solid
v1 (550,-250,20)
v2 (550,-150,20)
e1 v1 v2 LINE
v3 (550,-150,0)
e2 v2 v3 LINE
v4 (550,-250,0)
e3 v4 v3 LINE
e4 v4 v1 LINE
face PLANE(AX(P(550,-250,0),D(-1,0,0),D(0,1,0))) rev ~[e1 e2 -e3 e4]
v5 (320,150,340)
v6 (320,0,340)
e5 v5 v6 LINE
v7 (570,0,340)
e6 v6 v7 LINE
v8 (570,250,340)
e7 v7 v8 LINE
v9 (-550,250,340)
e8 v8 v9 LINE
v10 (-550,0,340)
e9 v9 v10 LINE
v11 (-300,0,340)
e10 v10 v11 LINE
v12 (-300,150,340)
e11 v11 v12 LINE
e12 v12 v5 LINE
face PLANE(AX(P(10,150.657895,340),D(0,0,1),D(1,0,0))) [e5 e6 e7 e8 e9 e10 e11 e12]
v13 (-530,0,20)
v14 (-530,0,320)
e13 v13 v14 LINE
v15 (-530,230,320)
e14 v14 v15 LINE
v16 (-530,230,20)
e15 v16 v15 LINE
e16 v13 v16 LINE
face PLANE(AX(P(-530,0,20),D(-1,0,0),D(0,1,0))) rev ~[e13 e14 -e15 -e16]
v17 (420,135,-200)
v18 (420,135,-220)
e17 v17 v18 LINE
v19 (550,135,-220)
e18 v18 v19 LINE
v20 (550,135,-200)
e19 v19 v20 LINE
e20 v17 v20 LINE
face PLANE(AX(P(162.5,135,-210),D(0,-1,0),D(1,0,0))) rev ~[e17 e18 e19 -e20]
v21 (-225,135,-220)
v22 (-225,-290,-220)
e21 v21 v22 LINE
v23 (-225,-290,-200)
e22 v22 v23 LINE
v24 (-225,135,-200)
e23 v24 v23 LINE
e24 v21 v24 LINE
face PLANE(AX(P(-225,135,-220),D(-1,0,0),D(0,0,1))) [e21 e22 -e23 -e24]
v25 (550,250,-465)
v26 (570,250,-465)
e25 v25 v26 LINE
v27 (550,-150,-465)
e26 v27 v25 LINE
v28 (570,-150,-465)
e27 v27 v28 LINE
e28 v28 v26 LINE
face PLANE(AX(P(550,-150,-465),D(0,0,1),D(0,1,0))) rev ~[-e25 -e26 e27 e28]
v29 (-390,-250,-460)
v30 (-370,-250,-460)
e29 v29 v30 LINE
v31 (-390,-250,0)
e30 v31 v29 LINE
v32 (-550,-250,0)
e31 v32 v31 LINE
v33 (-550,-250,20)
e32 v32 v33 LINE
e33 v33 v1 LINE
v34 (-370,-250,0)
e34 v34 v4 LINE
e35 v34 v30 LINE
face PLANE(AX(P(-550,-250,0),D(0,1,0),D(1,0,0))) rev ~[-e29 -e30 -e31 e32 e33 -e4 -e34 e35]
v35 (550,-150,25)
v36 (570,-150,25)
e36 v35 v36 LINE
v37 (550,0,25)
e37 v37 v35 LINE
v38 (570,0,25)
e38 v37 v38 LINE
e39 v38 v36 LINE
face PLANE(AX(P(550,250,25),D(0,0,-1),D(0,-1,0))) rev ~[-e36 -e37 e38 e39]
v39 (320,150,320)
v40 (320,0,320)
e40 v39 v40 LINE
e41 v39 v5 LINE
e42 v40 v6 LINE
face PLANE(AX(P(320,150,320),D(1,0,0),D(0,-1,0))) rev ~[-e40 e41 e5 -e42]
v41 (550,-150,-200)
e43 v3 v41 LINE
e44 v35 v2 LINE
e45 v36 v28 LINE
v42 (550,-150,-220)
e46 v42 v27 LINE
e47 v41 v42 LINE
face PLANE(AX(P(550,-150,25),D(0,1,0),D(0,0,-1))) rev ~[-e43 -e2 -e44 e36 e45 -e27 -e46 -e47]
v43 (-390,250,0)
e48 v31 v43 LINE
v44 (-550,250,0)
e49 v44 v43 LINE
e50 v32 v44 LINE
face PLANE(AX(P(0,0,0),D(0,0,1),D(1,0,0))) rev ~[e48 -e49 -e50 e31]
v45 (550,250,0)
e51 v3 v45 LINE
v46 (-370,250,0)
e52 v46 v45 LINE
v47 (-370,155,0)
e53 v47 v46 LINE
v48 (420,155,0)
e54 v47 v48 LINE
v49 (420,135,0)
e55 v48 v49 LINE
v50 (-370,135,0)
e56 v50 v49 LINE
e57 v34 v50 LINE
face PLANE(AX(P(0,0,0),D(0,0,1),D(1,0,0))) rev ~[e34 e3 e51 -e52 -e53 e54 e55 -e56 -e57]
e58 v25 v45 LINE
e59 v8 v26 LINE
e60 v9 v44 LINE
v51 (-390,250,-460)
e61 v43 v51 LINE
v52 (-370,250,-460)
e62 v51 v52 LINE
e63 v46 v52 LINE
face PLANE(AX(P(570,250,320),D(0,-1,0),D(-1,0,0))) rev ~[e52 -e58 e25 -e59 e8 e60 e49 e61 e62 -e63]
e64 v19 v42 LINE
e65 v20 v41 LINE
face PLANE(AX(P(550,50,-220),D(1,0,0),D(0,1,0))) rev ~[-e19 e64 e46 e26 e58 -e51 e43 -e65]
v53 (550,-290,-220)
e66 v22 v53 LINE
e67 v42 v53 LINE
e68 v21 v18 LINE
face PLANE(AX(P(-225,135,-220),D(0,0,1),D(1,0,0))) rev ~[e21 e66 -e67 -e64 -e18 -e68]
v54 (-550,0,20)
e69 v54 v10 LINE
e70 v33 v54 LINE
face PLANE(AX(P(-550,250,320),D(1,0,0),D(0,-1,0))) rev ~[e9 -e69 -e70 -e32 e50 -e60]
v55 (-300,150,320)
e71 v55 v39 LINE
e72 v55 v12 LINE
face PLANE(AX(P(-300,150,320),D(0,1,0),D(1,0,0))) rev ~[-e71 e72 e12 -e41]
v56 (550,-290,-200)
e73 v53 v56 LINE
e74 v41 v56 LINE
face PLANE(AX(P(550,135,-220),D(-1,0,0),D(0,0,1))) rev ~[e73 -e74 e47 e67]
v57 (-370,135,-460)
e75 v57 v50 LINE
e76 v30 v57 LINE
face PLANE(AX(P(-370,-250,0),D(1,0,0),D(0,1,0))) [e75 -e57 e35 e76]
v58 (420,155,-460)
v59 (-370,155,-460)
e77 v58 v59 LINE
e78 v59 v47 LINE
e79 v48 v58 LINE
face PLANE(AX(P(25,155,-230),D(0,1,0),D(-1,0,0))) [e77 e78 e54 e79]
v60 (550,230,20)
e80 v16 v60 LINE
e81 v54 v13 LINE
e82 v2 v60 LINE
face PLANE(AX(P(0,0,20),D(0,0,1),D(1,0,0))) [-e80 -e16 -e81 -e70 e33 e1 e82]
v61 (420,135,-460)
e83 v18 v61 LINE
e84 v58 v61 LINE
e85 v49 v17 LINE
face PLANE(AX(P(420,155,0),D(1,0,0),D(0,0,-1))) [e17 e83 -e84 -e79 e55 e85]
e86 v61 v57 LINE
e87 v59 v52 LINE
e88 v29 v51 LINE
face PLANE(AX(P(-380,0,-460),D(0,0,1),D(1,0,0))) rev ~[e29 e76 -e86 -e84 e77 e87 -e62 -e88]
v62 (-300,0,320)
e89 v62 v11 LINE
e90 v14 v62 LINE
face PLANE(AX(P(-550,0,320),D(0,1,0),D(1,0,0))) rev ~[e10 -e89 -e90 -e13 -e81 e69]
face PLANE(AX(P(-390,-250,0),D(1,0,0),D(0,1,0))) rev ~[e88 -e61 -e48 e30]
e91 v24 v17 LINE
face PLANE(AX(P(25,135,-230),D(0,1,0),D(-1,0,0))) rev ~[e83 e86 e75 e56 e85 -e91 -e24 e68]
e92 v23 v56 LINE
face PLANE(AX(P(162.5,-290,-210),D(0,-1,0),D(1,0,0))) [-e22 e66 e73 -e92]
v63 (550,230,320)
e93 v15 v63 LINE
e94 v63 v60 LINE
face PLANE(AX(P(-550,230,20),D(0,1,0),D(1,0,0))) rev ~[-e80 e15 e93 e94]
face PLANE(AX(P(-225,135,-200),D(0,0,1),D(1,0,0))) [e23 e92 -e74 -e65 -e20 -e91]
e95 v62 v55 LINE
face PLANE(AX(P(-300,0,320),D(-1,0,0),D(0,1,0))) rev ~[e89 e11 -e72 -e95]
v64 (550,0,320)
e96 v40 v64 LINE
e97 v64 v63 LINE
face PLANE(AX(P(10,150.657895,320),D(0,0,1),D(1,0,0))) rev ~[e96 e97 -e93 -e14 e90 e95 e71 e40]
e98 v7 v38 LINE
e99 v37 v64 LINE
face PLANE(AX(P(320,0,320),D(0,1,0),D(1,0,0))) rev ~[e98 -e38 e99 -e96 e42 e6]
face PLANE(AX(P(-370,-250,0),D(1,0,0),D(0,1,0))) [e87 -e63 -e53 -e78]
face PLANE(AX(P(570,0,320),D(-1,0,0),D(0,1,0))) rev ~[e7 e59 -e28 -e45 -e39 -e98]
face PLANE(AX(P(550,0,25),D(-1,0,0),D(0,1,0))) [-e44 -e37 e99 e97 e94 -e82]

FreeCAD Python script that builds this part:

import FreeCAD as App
import Part
import Sketcher

V = App.Vector


def add_polygon(sketch, points):
    """Adds a closed chain of lines whose ends are joined by coincident constraints."""
    first, n = sketch.GeometryCount, len(points)
    for a, b in zip(points, points[1:] + points[:1]):
        sketch.addGeometry(Part.LineSegment(App.Vector(*a, 0), App.Vector(*b, 0)), False)
    for i in range(n):
        sketch.addConstraint(Sketcher.Constraint("Coincident", first + i, 2, first + (i + 1) % n, 1))

doc = App.newDocument("Part")
body = doc.addObject("PartDesign::Body", "Body")

sketch1 = body.newObject("Sketcher::SketchObject", "Sketch")
sketch1.AttachmentSupport = (doc.getObject("XY_Plane"), [""])
sketch1.MapMode = "FlatFace"
add_polygon(sketch1, [(-550, 250), (-550, -250), (550, -250), (550, 250)])
sketch1.addConstraint(Sketcher.Constraint("Vertical", 0))
sketch1.addConstraint(Sketcher.Constraint("Horizontal", 1))
sketch1.addConstraint(Sketcher.Constraint("Vertical", 2))
sketch1.addConstraint(Sketcher.Constraint("Horizontal", 3))
sketch1.addConstraint(Sketcher.Constraint("Symmetric", 0, 2, 2, 2, -1, 1))
sketch1.addConstraint(Sketcher.Constraint("DistanceX", 1, 1, 1, 2, 1100.0))
sketch1.addConstraint(Sketcher.Constraint("DistanceY", 0, 2, 0, 1, 500.0))
pad1 = body.newObject("PartDesign::Pad", "Pad")
pad1.Profile = sketch1
pad1.Length = 20

sketch2 = body.newObject("Sketcher::SketchObject", "Sketch001")
sketch2.AttachmentSupport = (doc.getObject("YZ_Plane"), [""])
sketch2.MapMode = "FlatFace"
sketch2.AttachmentOffset = App.Placement(V(0, 0, 550), App.Rotation())
add_polygon(sketch2, [(250, -465), (250, 25), (-150, 25), (-150, -465)])
sketch2.addConstraint(Sketcher.Constraint("Vertical", 0))
sketch2.addConstraint(Sketcher.Constraint("Horizontal", 1))
sketch2.addConstraint(Sketcher.Constraint("Vertical", 2))
sketch2.addConstraint(Sketcher.Constraint("Horizontal", 3))
sketch2.addConstraint(Sketcher.Constraint("DistanceX", 1, 2, 1, 1, 400.0))
sketch2.addConstraint(Sketcher.Constraint("DistanceY", 0, 1, 0, 2, 490.0))
sketch2.addConstraint(Sketcher.Constraint("DistanceX", -1, 1, 0, 2, 250.0))
sketch2.addConstraint(Sketcher.Constraint("DistanceY", -1, 1, 0, 2, 25.0))
pad2 = body.newObject("PartDesign::Pad", "Pad001")
pad2.Profile = sketch2
pad2.Length = 20

sketch3 = body.newObject("Sketcher::SketchObject", "Sketch002")
sketch3.AttachmentSupport = (doc.getObject("XY_Plane"), [""])
sketch3.MapMode = "FlatFace"
add_polygon(sketch3, [(-390, 250), (-390, -250), (-370, -250), (-370, 250)])
sketch3.addConstraint(Sketcher.Constraint("Vertical", 0))
sketch3.addConstraint(Sketcher.Constraint("Horizontal", 1))
sketch3.addConstraint(Sketcher.Constraint("Vertical", 2))
sketch3.addConstraint(Sketcher.Constraint("Horizontal", 3))
sketch3.addConstraint(Sketcher.Constraint("DistanceX", 1, 1, 1, 2, 20.0))
sketch3.addConstraint(Sketcher.Constraint("DistanceY", 0, 2, 0, 1, 500.0))
sketch3.addConstraint(Sketcher.Constraint("DistanceX", 0, 2, -1, 1, 390.0))
sketch3.addConstraint(Sketcher.Constraint("DistanceY", 0, 2, -1, 1, 250.0))
pad3 = body.newObject("PartDesign::Pad", "Pad002")
pad3.Profile = sketch3
pad3.Length = 460
pad3.Reversed = True

sketch4 = body.newObject("Sketcher::SketchObject", "Sketch003")
sketch4.AttachmentSupport = (doc.getObject("XZ_Plane"), [""])
sketch4.MapMode = "FlatFace"
sketch4.AttachmentOffset = App.Placement(V(0, 0, -155), App.Rotation())
add_polygon(sketch4, [(-370, 0), (420, 0), (420, -460), (-370, -460)])
sketch4.addConstraint(Sketcher.Constraint("Horizontal", 0))
sketch4.addConstraint(Sketcher.Constraint("Vertical", 1))
sketch4.addConstraint(Sketcher.Constraint("Horizontal", 2))
sketch4.addConstraint(Sketcher.Constraint("Vertical", 3))
sketch4.addConstraint(Sketcher.Constraint("PointOnObject", 0, 2, -1))
sketch4.addConstraint(Sketcher.Constraint("DistanceX", 0, 1, 0, 2, 790.0))
sketch4.addConstraint(Sketcher.Constraint("DistanceY", 1, 2, 1, 1, 460.0))
sketch4.addConstraint(Sketcher.Constraint("DistanceX", -1, 1, 0, 2, 420.0))
pad4 = body.newObject("PartDesign::Pad", "Pad003")
pad4.Profile = sketch4
pad4.Length = 20

sketch5 = body.newObject("Sketcher::SketchObject", "Sketch004")
sketch5.AttachmentSupport = (doc.getObject("XZ_Plane"), [""])
sketch5.MapMode = "FlatFace"
sketch5.AttachmentOffset = App.Placement(V(0, 0, -135), App.Rotation())
add_polygon(sketch5, [(-225, -200), (-225, -220), (550, -220), (550, -200)])
sketch5.addConstraint(Sketcher.Constraint("Vertical", 0))
sketch5.addConstraint(Sketcher.Constraint("Horizontal", 1))
sketch5.addConstraint(Sketcher.Constraint("Vertical", 2))
sketch5.addConstraint(Sketcher.Constraint("Horizontal", 3))
sketch5.addConstraint(Sketcher.Constraint("DistanceX", 1, 1, 1, 2, 775.0))
sketch5.addConstraint(Sketcher.Constraint("DistanceY", 0, 2, 0, 1, 20.0))
sketch5.addConstraint(Sketcher.Constraint("DistanceX", 0, 2, -1, 1, 225.0))
sketch5.addConstraint(Sketcher.Constraint("DistanceY", 0, 2, -1, 1, 220.0))
pad5 = body.newObject("PartDesign::Pad", "Pad004")
pad5.Profile = sketch5
pad5.Length = 425

sketch6 = body.newObject("Sketcher::SketchObject", "Sketch005")
sketch6.AttachmentSupport = (doc.getObject("XY_Plane"), [""])
sketch6.MapMode = "FlatFace"
sketch6.AttachmentOffset = App.Placement(V(0, 0, 20), App.Rotation())
add_polygon(sketch6, [(-550, 250), (-550, 230), (550, 230), (550, 250)])
sketch6.addConstraint(Sketcher.Constraint("Vertical", 0))
sketch6.addConstraint(Sketcher.Constraint("Horizontal", 1))
sketch6.addConstraint(Sketcher.Constraint("Vertical", 2))
sketch6.addConstraint(Sketcher.Constraint("Horizontal", 3))
sketch6.addConstraint(Sketcher.Constraint("DistanceX", 1, 1, 1, 2, 1100.0))
sketch6.addConstraint(Sketcher.Constraint("DistanceY", 0, 2, 0, 1, 20.0))
sketch6.addConstraint(Sketcher.Constraint("DistanceX", 0, 2, -1, 1, 550.0))
sketch6.addConstraint(Sketcher.Constraint("DistanceY", -1, 1, 0, 2, 230.0))
pad6 = body.newObject("PartDesign::Pad", "Pad005")
pad6.Profile = sketch6
pad6.Length = 300

sketch7 = body.newObject("Sketcher::SketchObject", "Sketch006")
sketch7.AttachmentSupport = (doc.getObject("XY_Plane"), [""])
sketch7.MapMode = "FlatFace"
sketch7.AttachmentOffset = App.Placement(V(0, 0, 20), App.Rotation())
add_polygon(sketch7, [(-550, 230), (-550, 0), (-530, 0), (-530, 230)])
sketch7.addConstraint(Sketcher.Constraint("Vertical", 0))
sketch7.addConstraint(Sketcher.Constraint("Horizontal", 1))
sketch7.addConstraint(Sketcher.Constraint("Vertical", 2))
sketch7.addConstraint(Sketcher.Constraint("Horizontal", 3))
sketch7.addConstraint(Sketcher.Constraint("PointOnObject", 0, 2, -1))
sketch7.addConstraint(Sketcher.Constraint("DistanceX", 1, 1, 1, 2, 20.0))
sketch7.addConstraint(Sketcher.Constraint("DistanceY", 0, 2, 0, 1, 230.0))
sketch7.addConstraint(Sketcher.Constraint("DistanceX", 0, 2, -1, 1, 550.0))
pad7 = body.newObject("PartDesign::Pad", "Pad006")
pad7.Profile = sketch7
pad7.Length = 300

sketch8 = body.newObject("Sketcher::SketchObject", "Sketch007")
sketch8.AttachmentSupport = (doc.getObject("XY_Plane"), [""])
sketch8.MapMode = "FlatFace"
sketch8.AttachmentOffset = App.Placement(V(0, 0, 25), App.Rotation())
add_polygon(sketch8, [(550, 250), (550, 0), (570, 0), (570, 250)])
sketch8.addConstraint(Sketcher.Constraint("Vertical", 0))
sketch8.addConstraint(Sketcher.Constraint("Horizontal", 1))
sketch8.addConstraint(Sketcher.Constraint("Vertical", 2))
sketch8.addConstraint(Sketcher.Constraint("Horizontal", 3))
sketch8.addConstraint(Sketcher.Constraint("PointOnObject", 0, 2, -1))
sketch8.addConstraint(Sketcher.Constraint("DistanceX", 1, 1, 1, 2, 20.0))
sketch8.addConstraint(Sketcher.Constraint("DistanceY", 0, 2, 0, 1, 250.0))
sketch8.addConstraint(Sketcher.Constraint("DistanceX", -1, 1, 0, 2, 550.0))
pad8 = body.newObject("PartDesign::Pad", "Pad007")
pad8.Profile = sketch8
pad8.Length = 295

sketch9 = body.newObject("Sketcher::SketchObject", "Sketch008")
sketch9.AttachmentSupport = (doc.getObject("XY_Plane"), [""])
sketch9.MapMode = "FlatFace"
sketch9.AttachmentOffset = App.Placement(V(0, 0, 320), App.Rotation())
add_polygon(sketch9, [(-550, 250), (-550, 0), (-300, 0), (-300, 150), (320, 150), (320, 0), (570, 0), (570, 250)])
sketch9.addConstraint(Sketcher.Constraint("Vertical", 0))
sketch9.addConstraint(Sketcher.Constraint("Horizontal", 1))
sketch9.addConstraint(Sketcher.Constraint("Vertical", 2))
sketch9.addConstraint(Sketcher.Constraint("Horizontal", 3))
sketch9.addConstraint(Sketcher.Constraint("Vertical", 4))
sketch9.addConstraint(Sketcher.Constraint("Horizontal", 5))
sketch9.addConstraint(Sketcher.Constraint("Vertical", 6))
sketch9.addConstraint(Sketcher.Constraint("Horizontal", 7))
sketch9.addConstraint(Sketcher.Constraint("PointOnObject", 0, 2, -1))
sketch9.addConstraint(Sketcher.Constraint("PointOnObject", 4, 2, -1))
sketch9.addConstraint(Sketcher.Constraint("Equal", 1, 5))
sketch9.addConstraint(Sketcher.Constraint("Equal", 5, 0))
sketch9.addConstraint(Sketcher.Constraint("DistanceX", 1, 1, 1, 2, 250.0))
sketch9.addConstraint(Sketcher.Constraint("DistanceX", 3, 1, 3, 2, 620.0))
sketch9.addConstraint(Sketcher.Constraint("DistanceY", 2, 1, 2, 2, 150.0))
sketch9.addConstraint(Sketcher.Constraint("DistanceX", 0, 2, -1, 1, 550.0))
pad9 = body.newObject("PartDesign::Pad", "Pad008")
pad9.Profile = sketch9
pad9.Length = 20

sketch10 = body.newObject("Sketcher::SketchObject", "Sketch009")
sketch10.AttachmentSupport = (doc.getObject("XY_Plane"), [""])
sketch10.MapMode = "FlatFace"
sketch10.AttachmentOffset = App.Placement(V(0, 0, 320), App.Rotation())
add_polygon(sketch10, [(-550, 250), (-550, 0), (-300, 0), (-300, 150), (320, 150), (320, 0), (570, 0), (570, 250)])
sketch10.addConstraint(Sketcher.Constraint("Vertical", 0))
sketch10.addConstraint(Sketcher.Constraint("Horizontal", 1))
sketch10.addConstraint(Sketcher.Constraint("Vertical", 2))
sketch10.addConstraint(Sketcher.Constraint("Horizontal", 3))
sketch10.addConstraint(Sketcher.Constraint("Vertical", 4))
sketch10.addConstraint(Sketcher.Constraint("Horizontal", 5))
sketch10.addConstraint(Sketcher.Constraint("Vertical", 6))
sketch10.addConstraint(Sketcher.Constraint("Horizontal", 7))
sketch10.addConstraint(Sketcher.Constraint("PointOnObject", 0, 2, -1))
sketch10.addConstraint(Sketcher.Constraint("PointOnObject", 4, 2, -1))
sketch10.addConstraint(Sketcher.Constraint("Equal", 1, 5))
sketch10.addConstraint(Sketcher.Constraint("Equal", 5, 0))
sketch10.addConstraint(Sketcher.Constraint("DistanceX", 1, 1, 1, 2, 250.0))
sketch10.addConstraint(Sketcher.Constraint("DistanceX", 3, 1, 3, 2, 620.0))
sketch10.addConstraint(Sketcher.Constraint("DistanceY", 2, 1, 2, 2, 150.0))
sketch10.addConstraint(Sketcher.Constraint("DistanceX", 0, 2, -1, 1, 550.0))
pad10 = body.newObject("PartDesign::Pad", "Pad009")
pad10.Profile = sketch10
pad10.Length = 20

doc.recompute()
